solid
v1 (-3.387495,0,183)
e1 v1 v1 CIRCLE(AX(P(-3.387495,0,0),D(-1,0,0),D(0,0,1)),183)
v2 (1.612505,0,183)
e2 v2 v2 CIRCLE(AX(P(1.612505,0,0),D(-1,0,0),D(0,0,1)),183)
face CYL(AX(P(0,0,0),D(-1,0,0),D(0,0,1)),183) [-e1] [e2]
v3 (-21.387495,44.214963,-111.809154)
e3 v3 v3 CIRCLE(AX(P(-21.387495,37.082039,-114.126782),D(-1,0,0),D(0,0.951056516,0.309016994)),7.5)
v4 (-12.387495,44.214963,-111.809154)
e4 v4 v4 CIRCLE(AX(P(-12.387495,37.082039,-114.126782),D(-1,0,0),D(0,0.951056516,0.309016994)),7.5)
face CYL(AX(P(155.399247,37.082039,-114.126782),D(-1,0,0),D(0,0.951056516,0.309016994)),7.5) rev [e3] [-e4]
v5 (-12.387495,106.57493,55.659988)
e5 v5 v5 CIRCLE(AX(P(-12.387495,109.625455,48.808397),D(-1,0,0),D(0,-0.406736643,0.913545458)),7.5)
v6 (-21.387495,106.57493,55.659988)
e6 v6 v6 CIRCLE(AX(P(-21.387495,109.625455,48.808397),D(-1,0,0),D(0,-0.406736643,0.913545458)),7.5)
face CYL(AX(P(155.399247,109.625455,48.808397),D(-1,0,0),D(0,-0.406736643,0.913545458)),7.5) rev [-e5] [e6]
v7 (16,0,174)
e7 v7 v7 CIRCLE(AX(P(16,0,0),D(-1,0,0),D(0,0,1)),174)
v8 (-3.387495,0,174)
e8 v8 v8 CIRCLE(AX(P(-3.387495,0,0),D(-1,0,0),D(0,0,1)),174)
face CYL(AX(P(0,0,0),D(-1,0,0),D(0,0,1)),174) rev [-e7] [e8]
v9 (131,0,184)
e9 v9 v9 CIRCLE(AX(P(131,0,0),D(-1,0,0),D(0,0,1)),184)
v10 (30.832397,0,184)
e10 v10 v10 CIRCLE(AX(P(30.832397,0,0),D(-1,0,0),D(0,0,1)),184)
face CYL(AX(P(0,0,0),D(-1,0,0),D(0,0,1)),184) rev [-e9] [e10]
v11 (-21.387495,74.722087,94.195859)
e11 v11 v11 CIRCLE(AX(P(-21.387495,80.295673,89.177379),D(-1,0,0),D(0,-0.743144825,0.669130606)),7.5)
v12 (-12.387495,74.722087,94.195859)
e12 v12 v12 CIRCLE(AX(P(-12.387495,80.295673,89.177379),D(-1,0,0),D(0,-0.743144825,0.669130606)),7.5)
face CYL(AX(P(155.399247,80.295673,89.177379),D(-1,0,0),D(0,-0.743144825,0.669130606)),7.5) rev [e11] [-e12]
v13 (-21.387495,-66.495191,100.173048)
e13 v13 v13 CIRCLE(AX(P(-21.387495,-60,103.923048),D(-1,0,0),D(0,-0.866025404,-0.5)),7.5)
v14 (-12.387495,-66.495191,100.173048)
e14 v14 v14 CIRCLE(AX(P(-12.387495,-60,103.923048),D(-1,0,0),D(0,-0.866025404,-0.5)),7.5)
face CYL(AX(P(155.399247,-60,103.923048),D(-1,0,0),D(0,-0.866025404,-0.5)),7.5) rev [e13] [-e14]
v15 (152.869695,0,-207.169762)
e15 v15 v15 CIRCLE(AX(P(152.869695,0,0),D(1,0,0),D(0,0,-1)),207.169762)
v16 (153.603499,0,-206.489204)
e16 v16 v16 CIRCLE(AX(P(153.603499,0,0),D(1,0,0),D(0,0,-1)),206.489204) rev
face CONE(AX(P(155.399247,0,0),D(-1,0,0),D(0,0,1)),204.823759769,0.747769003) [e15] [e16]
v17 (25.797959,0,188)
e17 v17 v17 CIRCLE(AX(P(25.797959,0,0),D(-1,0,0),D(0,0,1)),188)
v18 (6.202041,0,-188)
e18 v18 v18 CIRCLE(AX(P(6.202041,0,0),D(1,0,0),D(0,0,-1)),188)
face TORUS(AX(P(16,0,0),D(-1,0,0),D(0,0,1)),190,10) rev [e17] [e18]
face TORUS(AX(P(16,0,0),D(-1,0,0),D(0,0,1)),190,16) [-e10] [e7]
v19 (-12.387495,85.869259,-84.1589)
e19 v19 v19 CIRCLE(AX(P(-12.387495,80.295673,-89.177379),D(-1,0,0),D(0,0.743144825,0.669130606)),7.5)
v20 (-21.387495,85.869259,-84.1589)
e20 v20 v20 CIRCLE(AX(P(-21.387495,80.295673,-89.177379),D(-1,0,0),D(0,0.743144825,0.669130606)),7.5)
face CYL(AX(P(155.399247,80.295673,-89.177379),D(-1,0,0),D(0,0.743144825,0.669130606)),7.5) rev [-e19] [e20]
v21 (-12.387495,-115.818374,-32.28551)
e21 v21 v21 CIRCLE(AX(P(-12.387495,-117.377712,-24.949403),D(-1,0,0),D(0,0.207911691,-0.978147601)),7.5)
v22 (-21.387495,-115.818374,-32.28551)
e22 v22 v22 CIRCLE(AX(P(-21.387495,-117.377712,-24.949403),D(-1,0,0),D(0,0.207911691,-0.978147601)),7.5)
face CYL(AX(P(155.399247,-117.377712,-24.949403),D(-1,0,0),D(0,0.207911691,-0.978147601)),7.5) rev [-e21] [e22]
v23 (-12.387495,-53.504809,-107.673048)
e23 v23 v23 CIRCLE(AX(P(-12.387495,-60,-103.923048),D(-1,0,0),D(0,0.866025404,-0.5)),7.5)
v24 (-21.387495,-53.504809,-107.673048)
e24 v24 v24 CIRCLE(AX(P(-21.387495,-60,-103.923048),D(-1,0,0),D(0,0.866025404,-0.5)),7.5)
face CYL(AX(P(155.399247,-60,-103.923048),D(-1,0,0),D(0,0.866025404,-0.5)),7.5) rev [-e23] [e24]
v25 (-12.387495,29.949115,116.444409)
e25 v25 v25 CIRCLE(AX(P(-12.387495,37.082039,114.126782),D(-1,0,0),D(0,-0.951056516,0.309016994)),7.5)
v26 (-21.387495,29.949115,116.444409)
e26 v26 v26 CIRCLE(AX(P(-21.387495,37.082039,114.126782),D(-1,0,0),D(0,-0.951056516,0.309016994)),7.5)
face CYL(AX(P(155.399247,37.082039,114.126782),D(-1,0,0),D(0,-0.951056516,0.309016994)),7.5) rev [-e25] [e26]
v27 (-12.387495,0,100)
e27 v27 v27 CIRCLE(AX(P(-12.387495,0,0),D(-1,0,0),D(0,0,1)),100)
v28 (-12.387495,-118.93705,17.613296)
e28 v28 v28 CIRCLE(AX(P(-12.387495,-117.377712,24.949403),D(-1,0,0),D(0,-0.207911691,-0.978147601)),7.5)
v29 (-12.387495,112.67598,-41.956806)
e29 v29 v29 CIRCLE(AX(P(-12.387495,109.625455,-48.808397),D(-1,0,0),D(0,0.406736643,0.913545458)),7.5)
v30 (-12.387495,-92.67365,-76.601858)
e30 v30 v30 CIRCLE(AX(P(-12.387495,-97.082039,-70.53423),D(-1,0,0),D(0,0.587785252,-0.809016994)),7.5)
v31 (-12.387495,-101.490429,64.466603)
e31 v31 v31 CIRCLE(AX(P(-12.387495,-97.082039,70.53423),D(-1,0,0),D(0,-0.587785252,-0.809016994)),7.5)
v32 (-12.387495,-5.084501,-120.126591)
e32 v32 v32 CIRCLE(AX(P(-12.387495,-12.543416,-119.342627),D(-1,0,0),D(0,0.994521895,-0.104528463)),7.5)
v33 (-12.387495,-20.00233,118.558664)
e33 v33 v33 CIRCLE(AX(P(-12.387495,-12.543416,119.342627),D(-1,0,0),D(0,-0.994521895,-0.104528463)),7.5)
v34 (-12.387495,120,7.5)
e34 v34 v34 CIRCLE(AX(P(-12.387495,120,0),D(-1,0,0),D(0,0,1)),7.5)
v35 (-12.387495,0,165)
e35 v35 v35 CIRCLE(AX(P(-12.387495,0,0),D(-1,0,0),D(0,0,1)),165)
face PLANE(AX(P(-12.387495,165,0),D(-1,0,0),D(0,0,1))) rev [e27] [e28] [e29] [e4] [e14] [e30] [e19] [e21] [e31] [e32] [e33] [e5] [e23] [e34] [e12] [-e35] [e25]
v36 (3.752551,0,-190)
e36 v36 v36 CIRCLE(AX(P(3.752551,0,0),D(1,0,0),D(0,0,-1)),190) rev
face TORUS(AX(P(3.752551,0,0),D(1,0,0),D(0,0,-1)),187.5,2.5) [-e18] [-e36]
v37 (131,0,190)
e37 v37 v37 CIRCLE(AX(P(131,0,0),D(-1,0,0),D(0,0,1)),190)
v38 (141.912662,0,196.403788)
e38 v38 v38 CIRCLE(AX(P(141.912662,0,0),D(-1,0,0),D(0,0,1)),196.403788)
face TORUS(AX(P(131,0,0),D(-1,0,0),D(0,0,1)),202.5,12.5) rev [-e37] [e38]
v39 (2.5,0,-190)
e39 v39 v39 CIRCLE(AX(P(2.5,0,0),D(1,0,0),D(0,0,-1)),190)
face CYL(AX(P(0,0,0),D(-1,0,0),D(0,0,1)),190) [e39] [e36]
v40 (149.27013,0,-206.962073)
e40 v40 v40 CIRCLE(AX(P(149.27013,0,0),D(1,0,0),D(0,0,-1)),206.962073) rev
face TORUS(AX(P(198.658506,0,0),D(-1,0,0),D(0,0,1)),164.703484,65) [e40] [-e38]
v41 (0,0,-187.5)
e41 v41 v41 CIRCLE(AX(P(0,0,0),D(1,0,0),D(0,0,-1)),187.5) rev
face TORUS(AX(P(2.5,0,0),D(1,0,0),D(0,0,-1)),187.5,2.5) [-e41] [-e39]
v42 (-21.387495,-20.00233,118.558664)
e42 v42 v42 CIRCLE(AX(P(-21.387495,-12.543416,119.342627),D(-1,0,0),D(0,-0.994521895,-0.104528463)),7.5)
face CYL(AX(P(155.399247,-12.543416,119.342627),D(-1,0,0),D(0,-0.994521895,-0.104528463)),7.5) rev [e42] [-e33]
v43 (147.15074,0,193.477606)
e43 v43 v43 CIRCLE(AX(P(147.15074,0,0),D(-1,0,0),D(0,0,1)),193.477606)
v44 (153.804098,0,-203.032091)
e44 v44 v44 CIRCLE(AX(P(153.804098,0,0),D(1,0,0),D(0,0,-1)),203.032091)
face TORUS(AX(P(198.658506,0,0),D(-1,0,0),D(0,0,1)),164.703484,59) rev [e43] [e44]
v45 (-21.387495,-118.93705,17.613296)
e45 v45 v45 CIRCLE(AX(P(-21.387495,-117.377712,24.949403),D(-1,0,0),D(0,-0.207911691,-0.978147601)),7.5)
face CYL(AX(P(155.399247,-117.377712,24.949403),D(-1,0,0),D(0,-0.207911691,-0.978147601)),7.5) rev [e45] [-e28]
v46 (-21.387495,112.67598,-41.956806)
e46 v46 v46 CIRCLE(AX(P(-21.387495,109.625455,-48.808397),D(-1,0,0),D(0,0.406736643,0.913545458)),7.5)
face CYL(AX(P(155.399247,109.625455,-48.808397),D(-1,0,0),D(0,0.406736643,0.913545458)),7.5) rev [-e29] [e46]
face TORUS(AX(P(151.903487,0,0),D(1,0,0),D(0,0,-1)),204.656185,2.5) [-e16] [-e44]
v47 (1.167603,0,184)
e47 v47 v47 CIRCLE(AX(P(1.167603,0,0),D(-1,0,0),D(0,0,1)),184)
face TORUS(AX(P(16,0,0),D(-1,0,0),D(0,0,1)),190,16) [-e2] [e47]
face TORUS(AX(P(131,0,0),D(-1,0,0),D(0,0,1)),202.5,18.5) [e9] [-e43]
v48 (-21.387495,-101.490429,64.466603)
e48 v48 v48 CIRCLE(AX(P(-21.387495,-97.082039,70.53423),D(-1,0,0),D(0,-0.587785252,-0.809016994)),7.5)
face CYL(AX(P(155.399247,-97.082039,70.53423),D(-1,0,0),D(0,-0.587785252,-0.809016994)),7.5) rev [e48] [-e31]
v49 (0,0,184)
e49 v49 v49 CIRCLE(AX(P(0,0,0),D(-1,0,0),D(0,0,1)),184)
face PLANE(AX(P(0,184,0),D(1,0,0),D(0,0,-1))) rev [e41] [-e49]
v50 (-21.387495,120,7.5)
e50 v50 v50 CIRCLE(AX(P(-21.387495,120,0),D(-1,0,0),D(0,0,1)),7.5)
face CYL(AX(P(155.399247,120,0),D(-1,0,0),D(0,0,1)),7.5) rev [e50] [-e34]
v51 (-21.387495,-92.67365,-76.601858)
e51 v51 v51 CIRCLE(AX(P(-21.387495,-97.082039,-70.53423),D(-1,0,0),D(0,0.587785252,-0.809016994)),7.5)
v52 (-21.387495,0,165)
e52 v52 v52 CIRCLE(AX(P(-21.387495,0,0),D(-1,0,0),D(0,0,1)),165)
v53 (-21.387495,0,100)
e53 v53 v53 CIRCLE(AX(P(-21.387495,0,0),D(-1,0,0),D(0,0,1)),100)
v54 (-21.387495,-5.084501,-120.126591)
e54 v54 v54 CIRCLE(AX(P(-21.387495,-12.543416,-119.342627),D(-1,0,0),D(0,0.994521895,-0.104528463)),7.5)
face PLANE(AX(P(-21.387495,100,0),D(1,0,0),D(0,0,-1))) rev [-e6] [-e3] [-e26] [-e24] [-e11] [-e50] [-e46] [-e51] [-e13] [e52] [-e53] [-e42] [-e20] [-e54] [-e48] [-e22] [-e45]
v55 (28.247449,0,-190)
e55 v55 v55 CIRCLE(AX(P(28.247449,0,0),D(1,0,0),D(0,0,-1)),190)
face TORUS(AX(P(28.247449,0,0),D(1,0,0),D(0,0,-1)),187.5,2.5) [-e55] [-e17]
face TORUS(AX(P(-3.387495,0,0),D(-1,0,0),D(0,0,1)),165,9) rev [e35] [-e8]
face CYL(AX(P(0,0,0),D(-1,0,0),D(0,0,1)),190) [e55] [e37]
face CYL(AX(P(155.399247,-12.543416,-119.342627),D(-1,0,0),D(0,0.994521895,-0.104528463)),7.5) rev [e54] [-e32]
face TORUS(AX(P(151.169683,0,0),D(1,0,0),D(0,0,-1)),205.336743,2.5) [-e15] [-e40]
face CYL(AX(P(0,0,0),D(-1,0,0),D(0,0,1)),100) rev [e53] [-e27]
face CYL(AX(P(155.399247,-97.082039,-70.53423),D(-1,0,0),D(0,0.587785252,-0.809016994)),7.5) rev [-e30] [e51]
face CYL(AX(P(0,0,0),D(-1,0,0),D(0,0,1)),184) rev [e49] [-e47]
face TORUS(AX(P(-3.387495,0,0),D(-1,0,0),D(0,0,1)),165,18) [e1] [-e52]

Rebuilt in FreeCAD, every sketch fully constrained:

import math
import FreeCAD as App
import Part
import Sketcher

V = App.Vector
Q = App.Units.Quantity


def edges_at(feature, points):
    """Names of the edges that pass closest to the given points."""
    edges = feature.Shape.Edges
    near = lambda p: min(range(len(edges)), key=lambda i: edges[i].distToShape(Part.Vertex(*p))[0])
    return sorted({f"Edge{near(p) + 1}" for p in points})

doc = App.newDocument("Part")
params = doc.addObject("Spreadsheet::Sheet", "Params")
for row, (alias, value) in enumerate([
    ("sketch1_radius", "16 mm"),
    ("sketch1_radius2", "18 mm"),
    ("sketch1_radius3", "9 mm"),
    ("sketch1_radius4", "59 mm"),
    ("sketch1_radius5", "65 mm"),
    ("revolution_angle", "360 deg"),
    ("sketch2_diameter", "15 mm"),
    ("fillet_radius", "2.5 mm"),
    ("fillet2_radius", "2.5 mm"),
], start=1):
    params.set(f"A{row}", alias)
    params.set(f"B{row}", "=" + value)
    params.setAlias(f"B{row}", alias)

body = doc.addObject("PartDesign::Body", "Body")

# Sketch on XY plane
sketch1 = body.newObject("Sketcher::SketchObject", "Sketch")
sketch1.AttachmentSupport = (doc.getObject("XY_Plane"), [""])
sketch1.MapMode = "FlatFace"
sketch1.addGeometry([
    Part.LineSegment(V(6, 190, 0), V(0, 190, 0)),  # 0
    Part.LineSegment(V(0, 190, 0), V(0, 184, 0)),  # 1
    Part.LineSegment(V(0, 184, 0), V(1.2, 184, 0)),  # 2
    Part.ArcOfCircle(Part.Circle(V(16, 190, 0), V(0, 0, 1), 16), math.radians(-157.98), math.radians(-154.06)),  # 3
    Part.LineSegment(V(1.6, 183, 0), V(-3.4, 183, 0)),  # 4
    Part.ArcOfCircle(Part.Circle(V(-3.4, 165, 0), V(0, 0, 1), 18), math.radians(90), math.radians(180)),  # 5
    Part.LineSegment(V(-21.4, 165, 0), V(-21.4, 100, 0)),  # 6
    Part.LineSegment(V(-21.4, 100, 0), V(-12.4, 100, 0)),  # 7
    Part.LineSegment(V(-12.4, 100, 0), V(-12.4, 165, 0)),  # 8
    Part.ArcOfCircle(Part.Circle(V(-3.4, 165, 0), V(0, 0, 1), 9), math.radians(90), math.radians(180)),  # 9
    Part.LineSegment(V(-3.4, 174, 0), V(16, 174, 0)),  # 10
    Part.ArcOfCircle(Part.Circle(V(16, 190, 0), V(0, 0, 1), 16), math.radians(-90), math.radians(-22)),  # 11
    Part.LineSegment(V(30.8, 184, 0), V(131, 184, 0)),  # 12
    Part.ArcOfCircle(Part.Circle(V(131, 202.5, 0), V(0, 0, 1), 18.5), math.radians(-90), math.radians(-29)),  # 13
    Part.ArcOfCircle(Part.Circle(V(198.7, 164.7, 0), V(0, 0, 1), 59), math.radians(137.16), math.radians(150.81)),  # 14
    Part.LineSegment(V(155.4, 204.8, 0), V(151, 208.9, 0)),  # 15
    Part.ArcOfCircle(Part.Circle(V(198.7, 164.7, 0), V(0, 0, 1), 65), math.radians(137.16), math.radians(150.81)),  # 16
    Part.ArcOfCircle(Part.Circle(V(131, 202.5, 0), V(0, 0, 1), 12.5), math.radians(-90), math.radians(-29)),  # 17
    Part.LineSegment(V(131, 190, 0), V(26, 190, 0)),  # 18
    Part.ArcOfCircle(Part.Circle(V(16, 190, 0), V(0, 0, 1), 10), math.radians(180), math.radians(360)),  # 19
], False)
sketch1.addConstraint([
    Sketcher.Constraint("Coincident", 0, 2, 1, 1),
    Sketcher.Constraint("Coincident", 1, 2, 2, 1),
    Sketcher.Constraint("Coincident", 2, 2, 3, 1),
    Sketcher.Constraint("Coincident", 3, 2, 4, 1),
    Sketcher.Constraint("Tangent", 4, 2, 5, 1),
    Sketcher.Constraint("Tangent", 5, 2, 6, 1),
    Sketcher.Constraint("Coincident", 6, 2, 7, 1),
    Sketcher.Constraint("Coincident", 7, 2, 8, 1),
    Sketcher.Constraint("Tangent", 8, 2, 9, 2),
    Sketcher.Constraint("Tangent", 9, 1, 10, 1),
    Sketcher.Constraint("Tangent", 10, 2, 11, 1),
    Sketcher.Constraint("Coincident", 11, 2, 12, 1),
    Sketcher.Constraint("Tangent", 12, 2, 13, 1),
    Sketcher.Constraint("Tangent", 13, 2, 14, 2),
    Sketcher.Constraint("Coincident", 14, 1, 15, 1),
    Sketcher.Constraint("Coincident", 15, 2, 16, 1),
    Sketcher.Constraint("Tangent", 16, 2, 17, 2),
    Sketcher.Constraint("Tangent", 17, 1, 18, 1),
    Sketcher.Constraint("Coincident", 18, 2, 19, 2),
    Sketcher.Constraint("Coincident", 19, 1, 0, 1),
    Sketcher.Constraint("Horizontal", 0),
    Sketcher.Constraint("Vertical", 1),
    Sketcher.Constraint("Horizontal", 2),
    Sketcher.Constraint("Horizontal", 4),
    Sketcher.Constraint("Vertical", 6),
    Sketcher.Constraint("Horizontal", 7),
    Sketcher.Constraint("Vertical", 8),
    Sketcher.Constraint("Horizontal", 10),
    Sketcher.Constraint("Horizontal", 12),
    Sketcher.Constraint("Horizontal", 18),
    Sketcher.Constraint("Coincident", 9, 3, 5, 3),
    Sketcher.Constraint("Coincident", 11, 3, 3, 3),
    Sketcher.Constraint("Coincident", 16, 3, 14, 3),
    Sketcher.Constraint("Coincident", 17, 3, 13, 3),
    Sketcher.Constraint("Coincident", 19, 3, 3, 3),
    Sketcher.Constraint("Equal", 3, 11),
    Sketcher.Constraint("PointOnObject", 0, 2, -2),
    Sketcher.Constraint("Horizontal", 19, 3, 0, 2),
    Sketcher.Constraint("Horizontal", 2, 2, 11, 2),
    Sketcher.Constraint("Horizontal", 0, 2, 17, 1),
    Sketcher.Constraint("Equal", 0, 1),
    Sketcher.Constraint("Radius", 3, Q("16 mm")),
    Sketcher.Constraint("Radius", 5, Q("18 mm")),
    Sketcher.Constraint("Radius", 9, Q("9 mm")),
    Sketcher.Constraint("Radius", 14, Q("59 mm")),
    Sketcher.Constraint("Radius", 16, Q("65 mm")),
    Sketcher.Constraint("Radius", 19, Q("10 mm")),
    Sketcher.Constraint("Radius", 13, Q("18.5 mm")),
    Sketcher.Constraint("DistanceX", 4, 2, 4, 1, Q("5 mm")),
    Sketcher.Constraint("DistanceX", 18, 2, 18, 1, Q("105 mm")),
    Sketcher.Constraint("DistanceY", 6, 2, 6, 1, Q("65 mm")),
    Sketcher.Constraint("DistanceY", -1, 1, 3, 3, Q("190 mm")),
    Sketcher.Constraint("DistanceX", -1, 1, 15, 2, Q("151 mm")),
    Sketcher.Constraint("DistanceY", 16, 2, 15, 2, Q("12.5 mm")),
    Sketcher.Constraint("DistanceY", -1, 1, 14, 1, Q("204.82376 mm")),
])
sketch1.setExpression("Constraints[41]", "Params.sketch1_radius")
sketch1.setExpression("Constraints[42]", "Params.sketch1_radius2")
sketch1.setExpression("Constraints[43]", "Params.sketch1_radius3")
sketch1.setExpression("Constraints[44]", "Params.sketch1_radius4")
sketch1.setExpression("Constraints[45]", "Params.sketch1_radius5")
revolution = body.newObject("PartDesign::Revolution", "Revolution")
revolution.Profile = sketch1
revolution.ReferenceAxis = (sketch1, ["H_Axis"])
revolution.setExpression("Angle", "Params.revolution_angle")

# Sketch on YZ plane
sketch2 = body.newObject("Sketcher::SketchObject", "Sketch001")
sketch2.AttachmentSupport = (doc.getObject("YZ_Plane"), [""])
sketch2.MapMode = "FlatFace"
sketch2.AttachmentOffset = App.Placement(V(0, 0, -21.387495), App.Rotation())
sketch2.addGeometry(Part.Circle(V(120, 0, 0), V(0, 0, 1), 8), False)
sketch2.addConstraint([
    Sketcher.Constraint("PointOnObject", 0, 3, -1),
    Sketcher.Constraint("Diameter", 0, Q("15 mm")),
    Sketcher.Constraint("DistanceX", -1, 1, 0, 3, Q("120 mm")),
])
sketch2.setExpression("Constraints[1]", "Params.sketch2_diameter")
pocket1 = body.newObject("PartDesign::Pocket", "Pocket")
pocket1.Profile = sketch2
pocket1.Type = "ThroughAll"
pocket1.Reversed = True
doc.recompute()

polarpattern = body.newObject("PartDesign::PolarPattern", "PolarPattern")
polarpattern.Originals = [pocket1]
polarpattern.Axis = (doc.getObject("X_Axis"), [""])
polarpattern.Angle = 360
polarpattern.Occurrences = 15
body.Tip = polarpattern
doc.recompute()

fillet = body.newObject("PartDesign::Fillet", "Fillet")
fillet.Base = (polarpattern, edges_at(polarpattern, [(151, 0, -208.904), (155.399, 0, -204.824)]))
fillet.setExpression("Radius", "Params.fillet_radius")
doc.recompute()

fillet2 = body.newObject("PartDesign::Fillet", "Fillet001")
fillet2.Base = (fillet, edges_at(fillet, [(0, 0, -190), (6, 0, -190), (26, 0, -190)]))
fillet2.setExpression("Radius", "Params.fillet2_radius")

doc.recompute()
